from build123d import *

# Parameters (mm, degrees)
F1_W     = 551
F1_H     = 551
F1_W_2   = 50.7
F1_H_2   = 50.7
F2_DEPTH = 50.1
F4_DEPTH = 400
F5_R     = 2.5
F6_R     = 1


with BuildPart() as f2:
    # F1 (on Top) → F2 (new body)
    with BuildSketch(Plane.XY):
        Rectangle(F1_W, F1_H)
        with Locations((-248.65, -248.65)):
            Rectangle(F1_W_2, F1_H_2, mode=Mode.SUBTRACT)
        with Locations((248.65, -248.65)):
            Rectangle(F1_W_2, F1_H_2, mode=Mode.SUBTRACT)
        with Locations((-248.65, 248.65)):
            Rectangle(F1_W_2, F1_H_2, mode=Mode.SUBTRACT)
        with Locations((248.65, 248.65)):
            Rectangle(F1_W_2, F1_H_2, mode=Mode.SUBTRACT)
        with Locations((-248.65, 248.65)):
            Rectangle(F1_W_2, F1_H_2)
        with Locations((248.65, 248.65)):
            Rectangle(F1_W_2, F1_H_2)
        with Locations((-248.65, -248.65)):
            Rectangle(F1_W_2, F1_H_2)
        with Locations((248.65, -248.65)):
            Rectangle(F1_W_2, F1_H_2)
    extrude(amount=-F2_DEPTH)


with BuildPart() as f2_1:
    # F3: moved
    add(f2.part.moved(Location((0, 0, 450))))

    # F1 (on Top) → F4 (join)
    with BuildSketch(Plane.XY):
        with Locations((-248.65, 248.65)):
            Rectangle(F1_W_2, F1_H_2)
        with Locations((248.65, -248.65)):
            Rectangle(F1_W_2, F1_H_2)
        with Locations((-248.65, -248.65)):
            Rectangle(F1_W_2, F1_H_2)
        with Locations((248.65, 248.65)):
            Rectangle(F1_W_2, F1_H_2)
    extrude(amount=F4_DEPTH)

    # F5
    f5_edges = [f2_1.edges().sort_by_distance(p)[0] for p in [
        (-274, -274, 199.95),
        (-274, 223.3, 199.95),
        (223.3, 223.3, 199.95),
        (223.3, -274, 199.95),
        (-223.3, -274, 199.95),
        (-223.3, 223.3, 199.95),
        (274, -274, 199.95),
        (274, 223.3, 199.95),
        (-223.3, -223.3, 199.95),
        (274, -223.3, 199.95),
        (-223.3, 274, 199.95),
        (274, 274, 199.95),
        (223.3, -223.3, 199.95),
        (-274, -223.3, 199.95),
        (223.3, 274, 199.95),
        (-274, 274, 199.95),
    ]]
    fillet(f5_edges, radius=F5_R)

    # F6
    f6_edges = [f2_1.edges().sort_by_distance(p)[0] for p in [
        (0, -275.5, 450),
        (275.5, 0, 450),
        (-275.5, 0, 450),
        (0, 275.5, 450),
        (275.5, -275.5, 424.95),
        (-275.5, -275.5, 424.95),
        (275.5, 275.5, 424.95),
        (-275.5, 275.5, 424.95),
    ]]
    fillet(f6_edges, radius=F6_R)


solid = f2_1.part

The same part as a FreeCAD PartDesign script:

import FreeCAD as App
import Part
import Sketcher
Q = App.Units.Quantity


def edges_at(feature, points):
    """Names of the edges that pass closest to the given points."""
    edges = feature.Shape.Edges
    near = lambda p: min(range(len(edges)), key=lambda i: edges[i].distToShape(Part.Vertex(*p))[0])
    return sorted({f"Edge{near(p) + 1}" for p in points})

doc = App.newDocument("Part")
params = doc.addObject("Spreadsheet::Sheet", "Params")
for row, (alias, value) in enumerate([
    ("sketch1_width", "551 mm"),
    ("pad1_length", "50.1 mm"),
    ("sketch2_width", "50.7 mm"),
    ("pad2_length", "400 mm"),
    ("fillet_radius", "2.5 mm"),
    ("fillet2_radius", "1 mm"),
], start=1):
    params.set(f"A{row}", alias)
    params.set(f"B{row}", "=" + value)
    params.setAlias(f"B{row}", alias)

body = doc.addObject("PartDesign::Body", "Body")

sketch1 = doc.addObject("Sketcher::SketchObject", "Sketch")
body.addObject(sketch1)
sketch1.AttachmentSupport = (doc.XY_Plane, [""])
sketch1.MapMode = "FlatFace"
sketch1.addGeometry([
    Part.LineSegment(App.Vector(-276, 276, 0), App.Vector(-276, -276, 0)),
    Part.LineSegment(App.Vector(-276, -276, 0), App.Vector(276, -276, 0)),
    Part.LineSegment(App.Vector(276, -276, 0), App.Vector(276, 276, 0)),
    Part.LineSegment(App.Vector(276, 276, 0), App.Vector(-276, 276, 0)),
], False)
sketch1.addConstraint([
    Sketcher.Constraint("Coincident", 0, 2, 1, 1),
    Sketcher.Constraint("Coincident", 1, 2, 2, 1),
    Sketcher.Constraint("Coincident", 2, 2, 3, 1),
    Sketcher.Constraint("Coincident", 3, 2, 0, 1),
    Sketcher.Constraint("Vertical", 0),
    Sketcher.Constraint("Horizontal", 1),
    Sketcher.Constraint("Vertical", 2),
    Sketcher.Constraint("Horizontal", 3),
    Sketcher.Constraint("Symmetric", 0, 2, 2, 2, -1, 1),
    Sketcher.Constraint("Equal", 3, 0),
    Sketcher.Constraint("DistanceX", 1, 1, 1, 2, Q("551 mm")),
])
sketch1.setExpression("Constraints[10]", "Params.sketch1_width")
pad1 = doc.addObject("PartDesign::Pad", "Pad")
body.addObject(pad1)
pad1.Profile = sketch1
pad1.setExpression("Length", "Params.pad1_length")
pad1.Reversed = True
body2 = doc.addObject("PartDesign::Body", "Body001")
doc.recompute()

body.Placement = App.Placement(App.Vector(0, 0, 450), App.Rotation(App.Vector(0, 0, 1), 0))
boolean = doc.addObject("PartDesign::Boolean", "Boolean")
body2.addObject(boolean)
boolean.Type = "Fuse"
boolean.addObjects([body])

sketch2 = doc.addObject("Sketcher::SketchObject", "Sketch001")
body2.addObject(sketch2)
sketch2.AttachmentSupport = (doc.getObject("XY_Plane001"), [""])
sketch2.MapMode = "FlatFace"
sketch2.addGeometry([
    Part.LineSegment(App.Vector(-274, 274, 0), App.Vector(-274, 223, 0)),
    Part.LineSegment(App.Vector(-274, 223, 0), App.Vector(-223, 223, 0)),
    Part.LineSegment(App.Vector(-223, 223, 0), App.Vector(-223, 274, 0)),
    Part.LineSegment(App.Vector(-223, 274, 0), App.Vector(-274, 274, 0)),
    Part.LineSegment(App.Vector(223, -223, 0), App.Vector(223, -274, 0)),
    Part.LineSegment(App.Vector(223, -274, 0), App.Vector(274, -274, 0)),
    Part.LineSegment(App.Vector(274, -274, 0), App.Vector(274, -223, 0)),
    Part.LineSegment(App.Vector(274, -223, 0), App.Vector(223, -223, 0)),
    Part.LineSegment(App.Vector(-274, -223, 0), App.Vector(-274, -274, 0)),
    Part.LineSegment(App.Vector(-274, -274, 0), App.Vector(-223, -274, 0)),
    Part.LineSegment(App.Vector(-223, -274, 0), App.Vector(-223, -223, 0)),
    Part.LineSegment(App.Vector(-223, -223, 0), App.Vector(-274, -223, 0)),
    Part.LineSegment(App.Vector(223, 274, 0), App.Vector(223, 223, 0)),
    Part.LineSegment(App.Vector(223, 223, 0), App.Vector(274, 223, 0)),
    Part.LineSegment(App.Vector(274, 223, 0), App.Vector(274, 274, 0)),
    Part.LineSegment(App.Vector(274, 274, 0), App.Vector(223, 274, 0)),
], False)
sketch2.addConstraint([
    Sketcher.Constraint("Coincident", 0, 2, 1, 1),
    Sketcher.Constraint("Coincident", 1, 2, 2, 1),
    Sketcher.Constraint("Coincident", 2, 2, 3, 1),
    Sketcher.Constraint("Coincident", 3, 2, 0, 1),
    Sketcher.Constraint("Coincident", 4, 2, 5, 1),
    Sketcher.Constraint("Coincident", 5, 2, 6, 1),
    Sketcher.Constraint("Coincident", 6, 2, 7, 1),
    Sketcher.Constraint("Coincident", 7, 2, 4, 1),
    Sketcher.Constraint("Coincident", 8, 2, 9, 1),
    Sketcher.Constraint("Coincident", 9, 2, 10, 1),
    Sketcher.Constraint("Coincident", 10, 2, 11, 1),
    Sketcher.Constraint("Coincident", 11, 2, 8, 1),
    Sketcher.Constraint("Coincident", 12, 2, 13, 1),
    Sketcher.Constraint("Coincident", 13, 2, 14, 1),
    Sketcher.Constraint("Coincident", 14, 2, 15, 1),
    Sketcher.Constraint("Coincident", 15, 2, 12, 1),
    Sketcher.Constraint("Vertical", 0),
    Sketcher.Constraint("Horizontal", 1),
    Sketcher.Constraint("Vertical", 2),
    Sketcher.Constraint("Horizontal", 3),
    Sketcher.Constraint("Vertical", 4),
    Sketcher.Constraint("Horizontal", 5),
    Sketcher.Constraint("Vertical", 6),
    Sketcher.Constraint("Horizontal", 7),
    Sketcher.Constraint("Vertical", 8),
    Sketcher.Constraint("Horizontal", 9),
    Sketcher.Constraint("Vertical", 10),
    Sketcher.Constraint("Horizontal", 11),
    Sketcher.Constraint("Vertical", 12),
    Sketcher.Constraint("Horizontal", 13),
    Sketcher.Constraint("Vertical", 14),
    Sketcher.Constraint("Horizontal", 15),
    Sketcher.Constraint("Symmetric", 2, 2, 4, 2, -1, 1),
    Sketcher.Constraint("Symmetric", 0, 2, 6, 2, -1, 1),
    Sketcher.Constraint("Symmetric", 10, 2, 12, 2, -1, 1),
    Sketcher.Constraint("Symmetric", 8, 2, 14, 2, -1, 1),
    Sketcher.Constraint("Symmetric", 5, 2, 8, 2, -2),
    Sketcher.Constraint("Symmetric", 7, 2, 10, 2, -2),
    Sketcher.Constraint("Equal", 15, 0),
    Sketcher.Constraint("DistanceX", 1, 1, 1, 2, Q("50.7 mm")),
    Sketcher.Constraint("DistanceX", 0, 2, -1, 1, Q("274 mm")),
    Sketcher.Constraint("DistanceY", -1, 1, 2, 2, Q("274 mm")),
])
sketch2.setExpression("Constraints[39]", "Params.sketch2_width")
pad2 = doc.addObject("PartDesign::Pad", "Pad001")
body2.addObject(pad2)
pad2.Profile = sketch2
pad2.setExpression("Length", "Params.pad2_length")
doc.recompute()

fillet = doc.addObject("PartDesign::Fillet", "Fillet")
body2.addObject(fillet)
fillet.Base = (pad2, edges_at(pad2, [
    (-274, -274, 199.95),
    (-274, 223.3, 199.95),
    (223.3, 223.3, 199.95),
    (223.3, -274, 199.95),
    (-223.3, -274, 199.95),
    (-223.3, 223.3, 199.95),
    (274, -274, 199.95),
    (274, 223.3, 199.95),
    (-223.3, -223.3, 199.95),
    (274, -223.3, 199.95),
    (-223.3, 274, 199.95),
    (274, 274, 199.95),
    (223.3, -223.3, 199.95),
    (-274, -223.3, 199.95),
    (223.3, 274, 199.95),
    (-274, 274, 199.95),
]))
fillet.setExpression("Radius", "Params.fillet_radius")
doc.recompute()

fillet2 = doc.addObject("PartDesign::Fillet", "Fillet001")
body2.addObject(fillet2)
fillet2.Base = (fillet, edges_at(fillet, [
    (0, -275.5, 450),
    (275.5, 0, 450),
    (-275.5, 0, 450),
    (0, 275.5, 450),
    (275.5, -275.5, 424.95),
    (-275.5, -275.5, 424.95),
    (275.5, 275.5, 424.95),
    (-275.5, 275.5, 424.95),
]))
fillet2.setExpression("Radius", "Params.fillet2_radius")

doc.recompute()
